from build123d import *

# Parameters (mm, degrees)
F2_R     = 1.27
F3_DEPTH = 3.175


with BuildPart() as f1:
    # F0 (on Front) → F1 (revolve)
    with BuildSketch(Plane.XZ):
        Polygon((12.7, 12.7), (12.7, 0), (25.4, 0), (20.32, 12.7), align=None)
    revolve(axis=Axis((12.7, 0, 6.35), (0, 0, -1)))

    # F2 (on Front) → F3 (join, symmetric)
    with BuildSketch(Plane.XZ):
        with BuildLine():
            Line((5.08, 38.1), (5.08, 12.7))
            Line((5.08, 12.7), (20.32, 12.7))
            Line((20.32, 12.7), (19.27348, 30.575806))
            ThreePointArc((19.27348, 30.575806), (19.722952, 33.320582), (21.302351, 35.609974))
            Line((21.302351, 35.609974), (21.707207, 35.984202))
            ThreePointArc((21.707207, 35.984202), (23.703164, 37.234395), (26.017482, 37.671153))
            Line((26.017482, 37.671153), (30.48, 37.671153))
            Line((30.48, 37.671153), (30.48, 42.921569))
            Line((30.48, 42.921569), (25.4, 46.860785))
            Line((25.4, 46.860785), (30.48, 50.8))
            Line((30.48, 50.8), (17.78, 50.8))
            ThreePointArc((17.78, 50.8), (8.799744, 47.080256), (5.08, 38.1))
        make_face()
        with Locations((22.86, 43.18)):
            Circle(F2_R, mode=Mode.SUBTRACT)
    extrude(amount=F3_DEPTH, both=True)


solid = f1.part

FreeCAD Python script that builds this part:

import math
import FreeCAD as App
import Part
import Sketcher
from FreeCAD import Vector
Q = App.Units.Quantity

doc = App.newDocument("Part")
params = doc.addObject("Spreadsheet::Sheet", "Params")
for row, (alias, value) in enumerate([
    ("sketch1_width", "0.5 in"),
    ("sketch1_width2", "0.3 in"),
    ("revolution_angle", "360 deg"),
    ("sketch2_diameter", "0.1 in"),
    ("sketch2_radius", "0.5 in"),
    ("sketch2_height", "1 in"),
    ("sketch2_radius2", "0.25 in"),
    ("sketch2_width", "0.6 in"),
    ("pad1_length", "0.25 in"),
], start=1):
    params.set(f"A{row}", alias)
    params.set(f"B{row}", "=" + value)
    params.setAlias(f"B{row}", alias)

body = doc.addObject("PartDesign::Body", "Body")

# Sketch on XZ plane
sketch1 = doc.addObject("Sketcher::SketchObject", "Sketch")
body.addObject(sketch1)
sketch1.AttachmentSupport = (doc.XZ_Plane, [""])
sketch1.MapMode = "FlatFace"
sketch1.addGeometry([
    Part.LineSegment(Vector(12.7, 12.7, 0), Vector(12.7, 0, 0)),
    Part.LineSegment(Vector(12.7, 0, 0), Vector(25.4, 0, 0)),
    Part.LineSegment(Vector(25.4, 0, 0), Vector(20.32, 12.7, 0)),
    Part.LineSegment(Vector(20.32, 12.7, 0), Vector(12.7, 12.7, 0)),
], False)
sketch1.addGeometry(Part.LineSegment(Vector(12.7, 12.7, 0), Vector(12.7, 0, 0)), True)  # axis
sketch1.addConstraint([
    Sketcher.Constraint("Coincident", 0, 2, 1, 1),
    Sketcher.Constraint("Coincident", 1, 2, 2, 1),
    Sketcher.Constraint("Coincident", 2, 2, 3, 1),
    Sketcher.Constraint("Coincident", 3, 2, 0, 1),
    Sketcher.Constraint("Vertical", 0),
    Sketcher.Constraint("Horizontal", 1),
    Sketcher.Constraint("Horizontal", 3),
    Sketcher.Constraint("Vertical", 4),
    Sketcher.Constraint("Coincident", 4, 1, 3, 2),
    Sketcher.Constraint("PointOnObject", 0, 2, -1),
    Sketcher.Constraint("PointOnObject", 4, 2, -1),
    Sketcher.Constraint("Equal", 1, 0),
    Sketcher.Constraint("DistanceX", 1, 1, 1, 2, Q("0.5 in")),
    Sketcher.Constraint("DistanceX", 3, 2, 3, 1, Q("0.3 in")),
    Sketcher.Constraint("DistanceX", -1, 1, 1, 2, Q("1 in")),
])
sketch1.setExpression("Constraints[12]", "Params.sketch1_width")
sketch1.setExpression("Constraints[13]", "Params.sketch1_width2")
revolution = doc.addObject("PartDesign::Revolution", "Revolution")
body.addObject(revolution)
revolution.Profile = sketch1
revolution.ReferenceAxis = (sketch1, ["Axis0"])
revolution.setExpression("Angle", "Params.revolution_angle")

# Sketch on XZ plane
sketch2 = doc.addObject("Sketcher::SketchObject", "Sketch001")
body.addObject(sketch2)
sketch2.AttachmentSupport = (doc.XZ_Plane, [""])
sketch2.MapMode = "FlatFace"
sketch2.addGeometry([
    Part.LineSegment(Vector(5.08, 38.1, 0), Vector(5.08, 12.7, 0)),  # 0
    Part.LineSegment(Vector(5.08, 12.7, 0), Vector(20.32, 12.7, 0)),  # 1
    Part.LineSegment(Vector(20.32, 12.7, 0), Vector(19.27348, 30.575806, 0)),  # 2
    Part.ArcOfCircle(Part.Circle(Vector(25.612619, 30.946927, 0), Vector(0, 0, 1), 6.349994), math.radians(132.748624), math.radians(183.350523)),  # 3
    Part.LineSegment(Vector(21.302351, 35.609974, 0), Vector(21.707207, 35.984202, 0)),  # 4
    Part.ArcOfCircle(Part.Circle(Vector(26.017482, 31.321154, 0), Vector(0, 0, 1), 6.349999), math.radians(90.000001), math.radians(132.748659)),  # 5
    Part.LineSegment(Vector(26.017482, 37.671153, 0), Vector(30.48, 37.671153, 0)),  # 6
    Part.LineSegment(Vector(30.48, 37.671153, 0), Vector(30.48, 42.921569, 0)),  # 7
    Part.LineSegment(Vector(30.48, 42.921569, 0), Vector(25.4, 46.860785, 0)),  # 8
    Part.LineSegment(Vector(25.4, 46.860785, 0), Vector(30.48, 50.8, 0)),  # 9
    Part.LineSegment(Vector(30.48, 50.8, 0), Vector(17.78, 50.8, 0)),  # 10
    Part.ArcOfCircle(Part.Circle(Vector(17.78, 38.1, 0), Vector(0, 0, 1), 12.7), math.radians(90.000002), math.radians(179.999998)),  # 11
    Part.Circle(Vector(22.86, 43.18, 0), Vector(0, 0, 1), 1.27),  # 12
], False)
sketch2.addConstraint([
    Sketcher.Constraint("Coincident", 0, 2, 1, 1),
    Sketcher.Constraint("Coincident", 1, 2, 2, 1),
    Sketcher.Constraint("Coincident", 2, 2, 3, 2),
    Sketcher.Constraint("Coincident", 3, 1, 4, 1),
    Sketcher.Constraint("Coincident", 4, 2, 5, 2),
    Sketcher.Constraint("Coincident", 5, 1, 6, 1),
    Sketcher.Constraint("Coincident", 6, 2, 7, 1),
    Sketcher.Constraint("Coincident", 7, 2, 8, 1),
    Sketcher.Constraint("Coincident", 8, 2, 9, 1),
    Sketcher.Constraint("Coincident", 9, 2, 10, 1),
    Sketcher.Constraint("Coincident", 10, 2, 11, 1),
    Sketcher.Constraint("Coincident", 11, 2, 0, 1),
    Sketcher.Constraint("Vertical", 0),
    Sketcher.Constraint("Horizontal", 1),
    Sketcher.Constraint("Horizontal", 6),
    Sketcher.Constraint("Vertical", 7),
    Sketcher.Constraint("Horizontal", 10),
    Sketcher.Constraint("Diameter", 12, Q("0.1 in")),
    Sketcher.Constraint("Radius", 11, Q("0.5 in")),
    Sketcher.Constraint("DistanceY", 0, 2, 0, 1, Q("1 in")),
    Sketcher.Constraint("Radius", 5, Q("0.25 in")),
    Sketcher.Constraint("DistanceX", 1, 1, 1, 2, Q("0.6 in")),
    Sketcher.Constraint("DistanceX", 10, 2, 10, 1, Q("0.5 in")),
    Sketcher.Constraint("DistanceX", -1, 1, 8, 2, Q("1 in")),
    Sketcher.Constraint("DistanceY", -1, 1, 9, 2, Q("2 in")),
    Sketcher.Constraint("DistanceY", 0, 2, 11, 3, Q("1 in")),
    Sketcher.Constraint("DistanceX", -1, 1, 11, 3, Q("0.7 in")),
    Sketcher.Constraint("DistanceX", -1, 1, 12, 3, Q("0.9 in")),
    Sketcher.Constraint("DistanceY", -1, 1, 12, 3, Q("1.7 in")),
    Sketcher.Constraint("DistanceX", -1, 1, 6, 2, Q("1.2 in")),
    Sketcher.Constraint("DistanceX", -1, 1, 9, 2, Q("1.2 in")),
    Sketcher.Constraint("Radius", 3, Q("6.349994 mm")),
    Sketcher.Constraint("Distance", 4, Q("0.551321 mm")),
    Sketcher.Constraint("Distance", 8, Q("6.428361 mm")),
    Sketcher.Constraint("Distance", 9, Q("6.42836 mm")),
    Sketcher.Constraint("DistanceX", 6, 1, 6, 2, Q("4.462518 mm")),
    Sketcher.Constraint("DistanceY", 7, 1, 7, 2, Q("5.250416 mm")),
    Sketcher.Constraint("DistanceX", -1, 1, 3, 3, Q("25.612619 mm")),
    Sketcher.Constraint("DistanceX", -1, 1, 2, 2, Q("19.27348 mm")),
    Sketcher.Constraint("DistanceX", -1, 1, 3, 1, Q("21.302351 mm")),
    Sketcher.Constraint("DistanceX", 11, 3, 5, 3, Q("8.237482 mm")),
    Sketcher.Constraint("DistanceY", 5, 3, 3, 1, Q("4.28882 mm")),
])
sketch2.setExpression("Constraints[17]", "Params.sketch2_diameter")
sketch2.setExpression("Constraints[18]", "Params.sketch2_radius")
sketch2.setExpression("Constraints[19]", "Params.sketch2_height")
sketch2.setExpression("Constraints[20]", "Params.sketch2_radius2")
sketch2.setExpression("Constraints[21]", "Params.sketch2_width")
pad1 = doc.addObject("PartDesign::Pad", "Pad")
body.addObject(pad1)
pad1.Profile = sketch2
pad1.setExpression("Length", "Params.pad1_length")
pad1.Midplane = True

doc.recompute()
